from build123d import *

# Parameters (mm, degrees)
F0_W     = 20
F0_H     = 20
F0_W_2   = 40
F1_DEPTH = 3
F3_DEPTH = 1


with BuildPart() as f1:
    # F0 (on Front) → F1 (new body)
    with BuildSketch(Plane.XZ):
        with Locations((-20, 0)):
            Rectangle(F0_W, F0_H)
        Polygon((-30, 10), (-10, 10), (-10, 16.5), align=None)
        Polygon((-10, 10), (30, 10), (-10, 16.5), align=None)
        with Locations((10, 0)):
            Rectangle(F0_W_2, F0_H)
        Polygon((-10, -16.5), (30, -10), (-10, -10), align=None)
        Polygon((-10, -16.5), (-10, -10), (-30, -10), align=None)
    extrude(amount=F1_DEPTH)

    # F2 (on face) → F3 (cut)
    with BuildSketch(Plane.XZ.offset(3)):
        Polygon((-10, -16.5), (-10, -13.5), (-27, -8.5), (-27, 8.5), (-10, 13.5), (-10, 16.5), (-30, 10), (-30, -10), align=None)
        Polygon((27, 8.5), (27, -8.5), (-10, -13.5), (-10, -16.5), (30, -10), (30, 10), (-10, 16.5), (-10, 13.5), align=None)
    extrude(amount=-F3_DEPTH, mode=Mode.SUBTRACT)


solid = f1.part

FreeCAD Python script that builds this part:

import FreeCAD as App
import Part
import Sketcher
Q = App.Units.Quantity

doc = App.newDocument("Part")
body = doc.addObject("PartDesign::Body", "Body")

sketch1 = body.newObject("Sketcher::SketchObject", "Sketch")
sketch1.AttachmentSupport = (doc.getObject("XZ_Plane"), [""])
sketch1.MapMode = "FlatFace"
sketch1.addGeometry([
    Part.LineSegment(App.Vector(-30, 10, 0), App.Vector(-30, -10, 0)),
    Part.LineSegment(App.Vector(-30, -10, 0), App.Vector(-10, -16, 0)),
    Part.LineSegment(App.Vector(-10, -16, 0), App.Vector(30, -10, 0)),
    Part.LineSegment(App.Vector(30, -10, 0), App.Vector(30, 10, 0)),
    Part.LineSegment(App.Vector(30, 10, 0), App.Vector(-10, 16, 0)),
    Part.LineSegment(App.Vector(-10, 16, 0), App.Vector(-30, 10, 0)),
], False)
sketch1.addConstraint([
    Sketcher.Constraint("Coincident", 0, 2, 1, 1),
    Sketcher.Constraint("Coincident", 1, 2, 2, 1),
    Sketcher.Constraint("Coincident", 2, 2, 3, 1),
    Sketcher.Constraint("Coincident", 3, 2, 4, 1),
    Sketcher.Constraint("Coincident", 4, 2, 5, 1),
    Sketcher.Constraint("Coincident", 5, 2, 0, 1),
    Sketcher.Constraint("Vertical", 0),
    Sketcher.Constraint("Vertical", 3),
    Sketcher.Constraint("Symmetric", 0, 2, 3, 2, -1, 1),
    Sketcher.Constraint("Symmetric", 1, 2, 4, 2, -1),
    Sketcher.Constraint("Horizontal", 0, 2, 2, 2),
    Sketcher.Constraint("Horizontal", 3, 2, 5, 2),
    Sketcher.Constraint("DistanceY", 0, 2, 0, 1, Q("20 mm")),
    Sketcher.Constraint("DistanceX", 0, 2, -1, 1, Q("30 mm")),
    Sketcher.Constraint("DistanceX", 1, 2, -1, 1, Q("10 mm")),
    Sketcher.Constraint("DistanceY", 1, 2, 4, 2, Q("33 mm")),
])
pad1 = body.newObject("PartDesign::Pad", "Pad")
pad1.Profile = sketch1
pad1.Length = 3

sketch2 = body.newObject("Sketcher::SketchObject", "Sketch001")
sketch2.AttachmentSupport = (doc.getObject("XZ_Plane"), [""])
sketch2.MapMode = "FlatFace"
sketch2.AttachmentOffset = App.Placement(App.Vector(0, 0, 3), App.Rotation())
sketch2.addGeometry([
    Part.LineSegment(App.Vector(-10, 16, 0), App.Vector(-30, 10, 0)),
    Part.LineSegment(App.Vector(-30, 10, 0), App.Vector(-30, -10, 0)),
    Part.LineSegment(App.Vector(-30, -10, 0), App.Vector(-10, -16, 0)),
    Part.LineSegment(App.Vector(-10, -16, 0), App.Vector(30, -10, 0)),
    Part.LineSegment(App.Vector(30, -10, 0), App.Vector(30, 10, 0)),
    Part.LineSegment(App.Vector(30, 10, 0), App.Vector(-10, 16, 0)),
    Part.LineSegment(App.Vector(-10, -14, 0), App.Vector(-27, -8, 0)),
    Part.LineSegment(App.Vector(-27, -8, 0), App.Vector(-27, 8, 0)),
    Part.LineSegment(App.Vector(-27, 8, 0), App.Vector(-10, 14, 0)),
    Part.LineSegment(App.Vector(-10, 14, 0), App.Vector(27, 8, 0)),
    Part.LineSegment(App.Vector(27, 8, 0), App.Vector(27, -8, 0)),
    Part.LineSegment(App.Vector(27, -8, 0), App.Vector(-10, -14, 0)),
], False)
sketch2.addConstraint([
    Sketcher.Constraint("Coincident", 0, 2, 1, 1),
    Sketcher.Constraint("Coincident", 1, 2, 2, 1),
    Sketcher.Constraint("Coincident", 2, 2, 3, 1),
    Sketcher.Constraint("Coincident", 3, 2, 4, 1),
    Sketcher.Constraint("Coincident", 4, 2, 5, 1),
    Sketcher.Constraint("Coincident", 5, 2, 0, 1),
    Sketcher.Constraint("Coincident", 6, 2, 7, 1),
    Sketcher.Constraint("Coincident", 7, 2, 8, 1),
    Sketcher.Constraint("Coincident", 8, 2, 9, 1),
    Sketcher.Constraint("Coincident", 9, 2, 10, 1),
    Sketcher.Constraint("Coincident", 10, 2, 11, 1),
    Sketcher.Constraint("Coincident", 11, 2, 6, 1),
    Sketcher.Constraint("Vertical", 1),
    Sketcher.Constraint("Vertical", 4),
    Sketcher.Constraint("Vertical", 7),
    Sketcher.Constraint("Vertical", 10),
    Sketcher.Constraint("Symmetric", 0, 2, 3, 2, -1, 1),
    Sketcher.Constraint("Symmetric", 6, 2, 9, 2, -1, 1),
    Sketcher.Constraint("Symmetric", 2, 2, 5, 2, -1),
    Sketcher.Constraint("Symmetric", 8, 2, 11, 2, -1),
    Sketcher.Constraint("Horizontal", 1, 2, 3, 2),
    Sketcher.Constraint("Horizontal", 0, 2, 4, 2),
    Sketcher.Constraint("Horizontal", 7, 2, 9, 2),
    Sketcher.Constraint("Horizontal", 6, 2, 10, 2),
    Sketcher.Constraint("Vertical", 5, 2, 8, 2),
    Sketcher.Constraint("DistanceY", 1, 2, 1, 1, Q("20 mm")),
    Sketcher.Constraint("DistanceY", 7, 1, 7, 2, Q("17 mm")),
    Sketcher.Constraint("DistanceX", 0, 2, -1, 1, Q("30 mm")),
    Sketcher.Constraint("DistanceX", 2, 2, -1, 1, Q("10 mm")),
    Sketcher.Constraint("DistanceX", 6, 2, -1, 1, Q("27 mm")),
    Sketcher.Constraint("DistanceY", 2, 2, 5, 2, Q("33 mm")),
    Sketcher.Constraint("DistanceY", 8, 2, 5, 2, Q("3 mm")),
])
pocket1 = body.newObject("PartDesign::Pocket", "Pocket")
pocket1.Profile = sketch2
pocket1.Length = 1

doc.recompute()
